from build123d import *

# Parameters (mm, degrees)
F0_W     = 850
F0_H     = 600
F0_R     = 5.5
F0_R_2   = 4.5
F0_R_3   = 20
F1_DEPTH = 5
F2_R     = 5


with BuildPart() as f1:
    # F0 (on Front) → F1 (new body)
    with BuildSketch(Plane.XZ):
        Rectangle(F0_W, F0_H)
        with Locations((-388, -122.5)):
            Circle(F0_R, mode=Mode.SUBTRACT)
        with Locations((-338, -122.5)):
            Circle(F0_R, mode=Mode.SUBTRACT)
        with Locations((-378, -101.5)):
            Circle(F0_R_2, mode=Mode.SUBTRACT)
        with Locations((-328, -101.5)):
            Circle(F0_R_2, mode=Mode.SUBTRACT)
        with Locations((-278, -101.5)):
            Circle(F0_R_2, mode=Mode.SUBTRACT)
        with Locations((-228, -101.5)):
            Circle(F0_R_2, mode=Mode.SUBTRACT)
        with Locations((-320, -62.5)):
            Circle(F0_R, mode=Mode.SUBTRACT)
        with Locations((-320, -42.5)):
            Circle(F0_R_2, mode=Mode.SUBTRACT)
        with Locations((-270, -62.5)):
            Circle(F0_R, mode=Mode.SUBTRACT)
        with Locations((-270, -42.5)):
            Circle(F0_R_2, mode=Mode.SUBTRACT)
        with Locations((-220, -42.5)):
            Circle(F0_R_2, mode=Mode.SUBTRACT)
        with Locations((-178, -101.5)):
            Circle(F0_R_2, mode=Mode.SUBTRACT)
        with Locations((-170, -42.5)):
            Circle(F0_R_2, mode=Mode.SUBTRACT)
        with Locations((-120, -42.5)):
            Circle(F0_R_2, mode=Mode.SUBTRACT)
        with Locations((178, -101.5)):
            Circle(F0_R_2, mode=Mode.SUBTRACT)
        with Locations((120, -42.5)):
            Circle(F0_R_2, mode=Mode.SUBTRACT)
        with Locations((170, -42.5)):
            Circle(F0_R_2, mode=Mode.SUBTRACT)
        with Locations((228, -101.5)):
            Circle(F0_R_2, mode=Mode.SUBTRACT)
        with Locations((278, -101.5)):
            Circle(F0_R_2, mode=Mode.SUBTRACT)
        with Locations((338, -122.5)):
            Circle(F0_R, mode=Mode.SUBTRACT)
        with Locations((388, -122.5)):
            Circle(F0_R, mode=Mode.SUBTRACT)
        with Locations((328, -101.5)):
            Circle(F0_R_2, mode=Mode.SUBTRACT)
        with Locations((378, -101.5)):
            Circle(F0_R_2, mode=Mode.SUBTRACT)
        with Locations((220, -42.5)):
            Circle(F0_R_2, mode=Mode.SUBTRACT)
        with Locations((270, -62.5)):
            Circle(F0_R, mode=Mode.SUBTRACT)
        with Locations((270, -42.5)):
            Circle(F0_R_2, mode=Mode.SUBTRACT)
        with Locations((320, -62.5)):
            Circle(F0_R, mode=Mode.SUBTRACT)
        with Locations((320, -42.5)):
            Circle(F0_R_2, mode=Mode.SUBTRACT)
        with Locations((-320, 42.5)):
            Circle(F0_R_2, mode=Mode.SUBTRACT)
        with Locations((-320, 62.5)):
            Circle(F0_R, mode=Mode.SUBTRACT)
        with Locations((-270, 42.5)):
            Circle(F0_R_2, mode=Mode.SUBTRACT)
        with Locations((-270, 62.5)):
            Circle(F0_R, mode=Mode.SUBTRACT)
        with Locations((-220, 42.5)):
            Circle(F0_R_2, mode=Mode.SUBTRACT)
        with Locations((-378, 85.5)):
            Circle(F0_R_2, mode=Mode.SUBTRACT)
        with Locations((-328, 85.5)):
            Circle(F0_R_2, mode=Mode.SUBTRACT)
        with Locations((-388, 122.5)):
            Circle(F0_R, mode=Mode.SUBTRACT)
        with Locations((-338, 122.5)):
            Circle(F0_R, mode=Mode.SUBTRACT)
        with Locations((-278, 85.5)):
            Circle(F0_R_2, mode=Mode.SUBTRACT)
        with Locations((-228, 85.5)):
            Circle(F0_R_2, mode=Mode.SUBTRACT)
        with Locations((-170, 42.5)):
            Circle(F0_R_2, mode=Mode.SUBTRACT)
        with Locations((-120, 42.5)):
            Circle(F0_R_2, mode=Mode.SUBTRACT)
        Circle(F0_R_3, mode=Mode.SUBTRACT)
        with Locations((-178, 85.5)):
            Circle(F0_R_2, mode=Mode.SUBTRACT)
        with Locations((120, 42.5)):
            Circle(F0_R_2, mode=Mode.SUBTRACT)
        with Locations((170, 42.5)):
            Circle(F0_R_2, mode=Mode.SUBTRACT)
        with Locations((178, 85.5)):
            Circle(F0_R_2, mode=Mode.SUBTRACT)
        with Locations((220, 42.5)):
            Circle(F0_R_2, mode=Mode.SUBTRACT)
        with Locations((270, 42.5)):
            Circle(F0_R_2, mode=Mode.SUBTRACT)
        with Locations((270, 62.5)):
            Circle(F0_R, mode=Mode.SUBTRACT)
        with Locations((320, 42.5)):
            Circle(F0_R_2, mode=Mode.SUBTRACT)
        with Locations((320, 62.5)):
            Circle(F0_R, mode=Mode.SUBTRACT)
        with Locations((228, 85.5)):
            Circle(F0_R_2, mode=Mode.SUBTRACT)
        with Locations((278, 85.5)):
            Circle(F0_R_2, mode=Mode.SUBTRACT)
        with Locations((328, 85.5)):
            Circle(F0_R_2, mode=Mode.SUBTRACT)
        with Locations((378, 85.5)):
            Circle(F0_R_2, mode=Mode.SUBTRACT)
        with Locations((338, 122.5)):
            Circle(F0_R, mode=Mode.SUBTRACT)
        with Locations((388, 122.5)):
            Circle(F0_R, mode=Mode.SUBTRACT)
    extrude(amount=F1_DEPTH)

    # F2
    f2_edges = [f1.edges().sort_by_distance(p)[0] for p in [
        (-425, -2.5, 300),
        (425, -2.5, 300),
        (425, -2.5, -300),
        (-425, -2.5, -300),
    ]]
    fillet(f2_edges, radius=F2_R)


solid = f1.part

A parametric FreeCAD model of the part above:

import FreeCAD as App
import Part
import Sketcher
from FreeCAD import Vector


def edges_at(feature, points):
    """Names of the edges that pass closest to the given points."""
    edges = feature.Shape.Edges
    near = lambda p: min(range(len(edges)), key=lambda i: edges[i].distToShape(Part.Vertex(*p))[0])
    return sorted({f"Edge{near(p) + 1}" for p in points})


def add_polygon(sketch, points):
    """Adds a closed chain of lines whose ends are joined by coincident constraints."""
    first, n = sketch.GeometryCount, len(points)
    for a, b in zip(points, points[1:] + points[:1]):
        sketch.addGeometry(Part.LineSegment(App.Vector(*a, 0), App.Vector(*b, 0)), False)
    for i in range(n):
        sketch.addConstraint(Sketcher.Constraint("Coincident", first + i, 2, first + (i + 1) % n, 1))

doc = App.newDocument("Part")
body = doc.addObject("PartDesign::Body", "Body")

# Sketch on XZ plane
sketch1 = body.newObject("Sketcher::SketchObject", "Sketch")
sketch1.AttachmentSupport = (doc.getObject("XZ_Plane"), [""])
sketch1.MapMode = "FlatFace"
add_polygon(sketch1, [(-425, 300), (-425, -300), (425, -300), (425, 300)])  # lines 0-3
sketch1.addGeometry(Part.Circle(Vector(-388, -122.5, 0), Vector(0, 0, 1), 5.5), False)  # 4
sketch1.addGeometry(Part.Circle(Vector(-338, -122.5, 0), Vector(0, 0, 1), 5.5), False)  # 5
sketch1.addGeometry(Part.Circle(Vector(-378, -101.5, 0), Vector(0, 0, 1), 4.5), False)  # 6
sketch1.addGeometry(Part.Circle(Vector(-328, -101.5, 0), Vector(0, 0, 1), 4.5), False)  # 7
sketch1.addGeometry(Part.Circle(Vector(-278, -101.5, 0), Vector(0, 0, 1), 4.5), False)  # 8
sketch1.addGeometry(Part.Circle(Vector(-228, -101.5, 0), Vector(0, 0, 1), 4.5), False)  # 9
sketch1.addGeometry(Part.Circle(Vector(-178, -101.5, 0), Vector(0, 0, 1), 4.5), False)  # 10
sketch1.addGeometry(Part.Circle(Vector(-320, -62.5, 0), Vector(0, 0, 1), 5.5), False)  # 11
sketch1.addGeometry(Part.Circle(Vector(-320, -42.5, 0), Vector(0, 0, 1), 4.5), False)  # 12
sketch1.addGeometry(Part.Circle(Vector(-270, -62.5, 0), Vector(0, 0, 1), 5.5), False)  # 13
sketch1.addGeometry(Part.Circle(Vector(-270, -42.5, 0), Vector(0, 0, 1), 4.5), False)  # 14
sketch1.addGeometry(Part.Circle(Vector(-220, -42.5, 0), Vector(0, 0, 1), 4.5), False)  # 15
sketch1.addGeometry(Part.Circle(Vector(-170, -42.5, 0), Vector(0, 0, 1), 4.5), False)  # 16
sketch1.addGeometry(Part.Circle(Vector(-120, -42.5, 0), Vector(0, 0, 1), 4.5), False)  # 17
sketch1.addGeometry(Part.Circle(Vector(178, -101.5, 0), Vector(0, 0, 1), 4.5), False)  # 18
sketch1.addGeometry(Part.Circle(Vector(228, -101.5, 0), Vector(0, 0, 1), 4.5), False)  # 19
sketch1.addGeometry(Part.Circle(Vector(278, -101.5, 0), Vector(0, 0, 1), 4.5), False)  # 20
sketch1.addGeometry(Part.Circle(Vector(338, -122.5, 0), Vector(0, 0, 1), 5.5), False)  # 21
sketch1.addGeometry(Part.Circle(Vector(388, -122.5, 0), Vector(0, 0, 1), 5.5), False)  # 22
sketch1.addGeometry(Part.Circle(Vector(328, -101.5, 0), Vector(0, 0, 1), 4.5), False)  # 23
sketch1.addGeometry(Part.Circle(Vector(378, -101.5, 0), Vector(0, 0, 1), 4.5), False)  # 24
sketch1.addGeometry(Part.Circle(Vector(120, -42.5, 0), Vector(0, 0, 1), 4.5), False)  # 25
sketch1.addGeometry(Part.Circle(Vector(170, -42.5, 0), Vector(0, 0, 1), 4.5), False)  # 26
sketch1.addGeometry(Part.Circle(Vector(270, -62.5, 0), Vector(0, 0, 1), 5.5), False)  # 27
sketch1.addGeometry(Part.Circle(Vector(220, -42.5, 0), Vector(0, 0, 1), 4.5), False)  # 28
sketch1.addGeometry(Part.Circle(Vector(270, -42.5, 0), Vector(0, 0, 1), 4.5), False)  # 29
sketch1.addGeometry(Part.Circle(Vector(320, -62.5, 0), Vector(0, 0, 1), 5.5), False)  # 30
sketch1.addGeometry(Part.Circle(Vector(320, -42.5, 0), Vector(0, 0, 1), 4.5), False)  # 31
sketch1.addGeometry(Part.Circle(Vector(-320, 42.5, 0), Vector(0, 0, 1), 4.5), False)  # 32
sketch1.addGeometry(Part.Circle(Vector(-320, 62.5, 0), Vector(0, 0, 1), 5.5), False)  # 33
sketch1.addGeometry(Part.Circle(Vector(-270, 42.5, 0), Vector(0, 0, 1), 4.5), False)  # 34
sketch1.addGeometry(Part.Circle(Vector(-220, 42.5, 0), Vector(0, 0, 1), 4.5), False)  # 35
sketch1.addGeometry(Part.Circle(Vector(-270, 62.5, 0), Vector(0, 0, 1), 5.5), False)  # 36
sketch1.addGeometry(Part.Circle(Vector(-170, 42.5, 0), Vector(0, 0, 1), 4.5), False)  # 37
sketch1.addGeometry(Part.Circle(Vector(-120, 42.5, 0), Vector(0, 0, 1), 4.5), False)  # 38
sketch1.addGeometry(Part.Circle(Vector(-378, 85.5, 0), Vector(0, 0, 1), 4.5), False)  # 39
sketch1.addGeometry(Part.Circle(Vector(-328, 85.5, 0), Vector(0, 0, 1), 4.5), False)  # 40
sketch1.addGeometry(Part.Circle(Vector(-278, 85.5, 0), Vector(0, 0, 1), 4.5), False)  # 41
sketch1.addGeometry(Part.Circle(Vector(-228, 85.5, 0), Vector(0, 0, 1), 4.5), False)  # 42
sketch1.addGeometry(Part.Circle(Vector(-388, 122.5, 0), Vector(0, 0, 1), 5.5), False)  # 43
sketch1.addGeometry(Part.Circle(Vector(-338, 122.5, 0), Vector(0, 0, 1), 5.5), False)  # 44
sketch1.addGeometry(Part.Circle(Vector(-178, 85.5, 0), Vector(0, 0, 1), 4.5), False)  # 45
sketch1.addGeometry(Part.Circle(Vector(0, 0, 0), Vector(0, 0, 1), 20), False)  # 46
sketch1.addGeometry(Part.Circle(Vector(120, 42.5, 0), Vector(0, 0, 1), 4.5), False)  # 47
sketch1.addGeometry(Part.Circle(Vector(170, 42.5, 0), Vector(0, 0, 1), 4.5), False)  # 48
sketch1.addGeometry(Part.Circle(Vector(220, 42.5, 0), Vector(0, 0, 1), 4.5), False)  # 49
sketch1.addGeometry(Part.Circle(Vector(270, 42.5, 0), Vector(0, 0, 1), 4.5), False)  # 50
sketch1.addGeometry(Part.Circle(Vector(270, 62.5, 0), Vector(0, 0, 1), 5.5), False)  # 51
sketch1.addGeometry(Part.Circle(Vector(320, 42.5, 0), Vector(0, 0, 1), 4.5), False)  # 52
sketch1.addGeometry(Part.Circle(Vector(320, 62.5, 0), Vector(0, 0, 1), 5.5), False)  # 53
sketch1.addGeometry(Part.Circle(Vector(178, 85.5, 0), Vector(0, 0, 1), 4.5), False)  # 54
sketch1.addGeometry(Part.Circle(Vector(228, 85.5, 0), Vector(0, 0, 1), 4.5), False)  # 55
sketch1.addGeometry(Part.Circle(Vector(278, 85.5, 0), Vector(0, 0, 1), 4.5), False)  # 56
sketch1.addGeometry(Part.Circle(Vector(328, 85.5, 0), Vector(0, 0, 1), 4.5), False)  # 57
sketch1.addGeometry(Part.Circle(Vector(378, 85.5, 0), Vector(0, 0, 1), 4.5), False)  # 58
sketch1.addGeometry(Part.Circle(Vector(338, 122.5, 0), Vector(0, 0, 1), 5.5), False)  # 59
sketch1.addGeometry(Part.Circle(Vector(388, 122.5, 0), Vector(0, 0, 1), 5.5), False)  # 60
sketch1.addConstraint([
    Sketcher.Constraint("Vertical", 0),
    Sketcher.Constraint("Horizontal", 1),
    Sketcher.Constraint("Vertical", 2),
    Sketcher.Constraint("Horizontal", 3),
    Sketcher.Constraint("Coincident", 46, 3, -1, 1),
    Sketcher.Constraint("Equal", 4, 5),
    Sketcher.Constraint("Equal", 6, 7),
    Sketcher.Constraint("Equal", 7, 8),
    Sketcher.Constraint("Equal", 8, 9),
    Sketcher.Constraint("Equal", 9, 10),
    Sketcher.Constraint("Equal", 5, 11),
    Sketcher.Constraint("Equal", 10, 12),
    Sketcher.Constraint("Equal", 11, 13),
    Sketcher.Constraint("Equal", 12, 14),
    Sketcher.Constraint("Equal", 14, 15),
    Sketcher.Constraint("Equal", 15, 16),
    Sketcher.Constraint("Equal", 16, 17),
    Sketcher.Constraint("Equal", 17, 18),
    Sketcher.Constraint("Equal", 18, 19),
    Sketcher.Constraint("Equal", 19, 20),
    Sketcher.Constraint("Equal", 13, 21),
    Sketcher.Constraint("Equal", 21, 22),
    Sketcher.Constraint("Equal", 20, 23),
    Sketcher.Constraint("Equal", 23, 24),
    Sketcher.Constraint("Equal", 24, 25),
    Sketcher.Constraint("Equal", 25, 26),
    Sketcher.Constraint("Equal", 22, 27),
    Sketcher.Constraint("Equal", 26, 28),
    Sketcher.Constraint("Equal", 28, 29),
    Sketcher.Constraint("Equal", 27, 30),
    Sketcher.Constraint("Equal", 29, 31),
    Sketcher.Constraint("Equal", 31, 32),
    Sketcher.Constraint("Equal", 30, 33),
    Sketcher.Constraint("Equal", 32, 34),
    Sketcher.Constraint("Equal", 34, 35),
    Sketcher.Constraint("Equal", 33, 36),
    Sketcher.Constraint("Equal", 35, 37),
    Sketcher.Constraint("Equal", 37, 38),
    Sketcher.Constraint("Equal", 38, 39),
    Sketcher.Constraint("Equal", 39, 40),
    Sketcher.Constraint("Equal", 40, 41),
    Sketcher.Constraint("Equal", 41, 42),
    Sketcher.Constraint("Equal", 36, 43),
    Sketcher.Constraint("Equal", 43, 44),
    Sketcher.Constraint("Equal", 42, 45),
    Sketcher.Constraint("Equal", 45, 47),
    Sketcher.Constraint("Equal", 47, 48),
    Sketcher.Constraint("Equal", 48, 49),
    Sketcher.Constraint("Equal", 49, 50),
    Sketcher.Constraint("Equal", 44, 51),
    Sketcher.Constraint("Equal", 50, 52),
    Sketcher.Constraint("Equal", 51, 53),
    Sketcher.Constraint("Equal", 52, 54),
    Sketcher.Constraint("Equal", 54, 55),
    Sketcher.Constraint("Equal", 55, 56),
    Sketcher.Constraint("Equal", 56, 57),
    Sketcher.Constraint("Equal", 57, 58),
    Sketcher.Constraint("Equal", 53, 59),
    Sketcher.Constraint("Equal", 59, 60),
    Sketcher.Constraint("Symmetric", 31, 3, 32, 3, -1, 1),
    Sketcher.Constraint("Symmetric", 30, 3, 33, 3, -1, 1),
    Sketcher.Constraint("Symmetric", 29, 3, 34, 3, -1, 1),
    Sketcher.Constraint("Symmetric", 28, 3, 35, 3, -1, 1),
    Sketcher.Constraint("Symmetric", 27, 3, 36, 3, -1, 1),
    Sketcher.Constraint("Symmetric", 26, 3, 37, 3, -1, 1),
    Sketcher.Constraint("Symmetric", 25, 3, 38, 3, -1, 1),
    Sketcher.Constraint("Symmetric", 22, 3, 43, 3, -1, 1),
    Sketcher.Constraint("Symmetric", 21, 3, 44, 3, -1, 1),
    Sketcher.Constraint("Symmetric", 17, 3, 47, 3, -1, 1),
    Sketcher.Constraint("Symmetric", 16, 3, 48, 3, -1, 1),
    Sketcher.Constraint("Symmetric", 15, 3, 49, 3, -1, 1),
    Sketcher.Constraint("Symmetric", 14, 3, 50, 3, -1, 1),
    Sketcher.Constraint("Symmetric", 13, 3, 51, 3, -1, 1),
    Sketcher.Constraint("Symmetric", 12, 3, 52, 3, -1, 1),
    Sketcher.Constraint("Symmetric", 11, 3, 53, 3, -1, 1),
    Sketcher.Constraint("Symmetric", 5, 3, 59, 3, -1, 1),
    Sketcher.Constraint("Symmetric", 4, 3, 60, 3, -1, 1),
    Sketcher.Constraint("Symmetric", 0, 2, 2, 2, -1, 1),
    Sketcher.Constraint("Symmetric", 10, 3, 18, 3, -2),
    Sketcher.Constraint("Symmetric", 9, 3, 19, 3, -2),
    Sketcher.Constraint("Symmetric", 8, 3, 20, 3, -2),
    Sketcher.Constraint("Symmetric", 5, 3, 21, 3, -2),
    Sketcher.Constraint("Symmetric", 4, 3, 22, 3, -2),
    Sketcher.Constraint("Symmetric", 7, 3, 23, 3, -2),
    Sketcher.Constraint("Symmetric", 6, 3, 24, 3, -2),
    Sketcher.Constraint("Symmetric", 17, 3, 25, 3, -2),
    Sketcher.Constraint("Symmetric", 16, 3, 26, 3, -2),
    Sketcher.Constraint("Symmetric", 13, 3, 27, 3, -2),
    Sketcher.Constraint("Symmetric", 15, 3, 28, 3, -2),
    Sketcher.Constraint("Symmetric", 14, 3, 29, 3, -2),
    Sketcher.Constraint("Symmetric", 11, 3, 30, 3, -2),
    Sketcher.Constraint("Symmetric", 12, 3, 31, 3, -2),
    Sketcher.Constraint("Symmetric", 45, 3, 54, 3, -2),
    Sketcher.Constraint("Symmetric", 42, 3, 55, 3, -2),
    Sketcher.Constraint("Symmetric", 41, 3, 56, 3, -2),
    Sketcher.Constraint("Symmetric", 40, 3, 57, 3, -2),
    Sketcher.Constraint("Symmetric", 39, 3, 58, 3, -2),
    Sketcher.Constraint("Horizontal", 4, 3, 5, 3),
    Sketcher.Constraint("Horizontal", 6, 3, 7, 3),
    Sketcher.Constraint("Horizontal", 7, 3, 8, 3),
    Sketcher.Constraint("Horizontal", 8, 3, 9, 3),
    Sketcher.Constraint("Horizontal", 9, 3, 10, 3),
    Sketcher.Constraint("Horizontal", 11, 3, 13, 3),
    Sketcher.Constraint("Horizontal", 12, 3, 14, 3),
    Sketcher.Constraint("Horizontal", 14, 3, 15, 3),
    Sketcher.Constraint("Horizontal", 15, 3, 16, 3),
    Sketcher.Constraint("Horizontal", 16, 3, 17, 3),
    Sketcher.Constraint("Horizontal", 39, 3, 40, 3),
    Sketcher.Constraint("Horizontal", 40, 3, 41, 3),
    Sketcher.Constraint("Horizontal", 41, 3, 42, 3),
    Sketcher.Constraint("Horizontal", 42, 3, 45, 3),
    Sketcher.Constraint("Vertical", 11, 3, 12, 3),
    Sketcher.Constraint("Vertical", 13, 3, 14, 3),
    Sketcher.Constraint("Vertical", 6, 3, 39, 3),
    Sketcher.Constraint("Vertical", 7, 3, 40, 3),
    Sketcher.Constraint("Vertical", 8, 3, 41, 3),
    Sketcher.Constraint("Vertical", 9, 3, 42, 3),
    Sketcher.Constraint("Vertical", 10, 3, 45, 3),
    Sketcher.Constraint("Diameter", 4, 11.0),
    Sketcher.Constraint("Diameter", 6, 9.0),
    Sketcher.Constraint("Diameter", 46, 40.0),
    Sketcher.Constraint("DistanceX", 1, 1, 1, 2, 850.0),
    Sketcher.Constraint("DistanceY", 0, 2, 0, 1, 600.0),
    Sketcher.Constraint("DistanceX", 4, 3, -1, 1, 388.0),
    Sketcher.Constraint("DistanceX", 5, 3, -1, 1, 338.0),
    Sketcher.Constraint("DistanceX", 6, 3, -1, 1, 378.0),
    Sketcher.Constraint("DistanceX", 7, 3, -1, 1, 328.0),
    Sketcher.Constraint("DistanceX", 8, 3, -1, 1, 278.0),
    Sketcher.Constraint("DistanceX", 9, 3, -1, 1, 228.0),
    Sketcher.Constraint("DistanceX", 10, 3, -1, 1, 178.0),
    Sketcher.Constraint("DistanceX", 11, 3, -1, 1, 320.0),
    Sketcher.Constraint("DistanceX", 13, 3, -1, 1, 270.0),
    Sketcher.Constraint("DistanceX", 15, 3, -1, 1, 220.0),
    Sketcher.Constraint("DistanceX", 16, 3, -1, 1, 170.0),
    Sketcher.Constraint("DistanceX", 17, 3, -1, 1, 120.0),
    Sketcher.Constraint("DistanceY", 4, 3, -1, 1, 122.5),
    Sketcher.Constraint("DistanceY", 6, 3, -1, 1, 101.5),
    Sketcher.Constraint("DistanceY", 11, 3, -1, 1, 62.5),
    Sketcher.Constraint("DistanceY", 12, 3, -1, 1, 42.5),
    Sketcher.Constraint("DistanceY", -1, 1, 39, 3, 85.5),
])
pad1 = body.newObject("PartDesign::Pad", "Pad")
pad1.Profile = sketch1
pad1.Length = 5
doc.recompute()

fillet = body.newObject("PartDesign::Fillet", "Fillet")
fillet.Base = (pad1, edges_at(pad1, [
    (-425, -2.5, 300),
    (425, -2.5, 300),
    (425, -2.5, -300),
    (-425, -2.5, -300),
]))
fillet.Radius = 5

doc.recompute()
